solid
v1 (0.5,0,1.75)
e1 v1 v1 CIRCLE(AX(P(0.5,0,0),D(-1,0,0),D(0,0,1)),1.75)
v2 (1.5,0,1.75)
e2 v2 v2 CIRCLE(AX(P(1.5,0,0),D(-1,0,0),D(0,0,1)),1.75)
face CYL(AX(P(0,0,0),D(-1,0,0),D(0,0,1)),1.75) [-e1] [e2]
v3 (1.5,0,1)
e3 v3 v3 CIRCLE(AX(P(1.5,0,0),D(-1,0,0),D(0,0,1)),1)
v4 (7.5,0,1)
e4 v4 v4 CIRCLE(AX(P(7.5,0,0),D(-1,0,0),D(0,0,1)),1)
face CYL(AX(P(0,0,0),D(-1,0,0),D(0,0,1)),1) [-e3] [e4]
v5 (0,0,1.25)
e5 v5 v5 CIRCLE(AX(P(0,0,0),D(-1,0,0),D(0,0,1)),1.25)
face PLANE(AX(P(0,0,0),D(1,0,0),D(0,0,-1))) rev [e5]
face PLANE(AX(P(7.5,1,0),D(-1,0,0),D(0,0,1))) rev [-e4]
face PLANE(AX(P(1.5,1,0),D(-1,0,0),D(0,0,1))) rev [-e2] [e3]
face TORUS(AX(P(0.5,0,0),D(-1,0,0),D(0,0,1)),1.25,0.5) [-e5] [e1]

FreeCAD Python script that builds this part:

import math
import FreeCAD as App
import Part
import Sketcher
from FreeCAD import Vector
Q = App.Units.Quantity

doc = App.newDocument("Part")
body = doc.addObject("PartDesign::Body", "Body")

sketch1 = body.newObject("Sketcher::SketchObject", "Sketch")
sketch1.AttachmentSupport = (doc.getObject("XY_Plane"), [""])
sketch1.MapMode = "FlatFace"
sketch1.addGeometry([
    Part.LineSegment(Vector(0, 0, 0), Vector(7.5, 0, 0)),
    Part.LineSegment(Vector(7.5, 0, 0), Vector(7.5, 1, 0)),
    Part.LineSegment(Vector(7.5, 1, 0), Vector(1.5, 1, 0)),
    Part.LineSegment(Vector(1.5, 1, 0), Vector(1.5, 1.75, 0)),
    Part.LineSegment(Vector(1.5, 1.75, 0), Vector(0.5, 1.75, 0)),
    Part.ArcOfCircle(Part.Circle(Vector(0.5, 1.25, 0), Vector(0, 0, 1), 0.5), math.radians(90), math.radians(180)),
    Part.LineSegment(Vector(0, 1.25, 0), Vector(0, 0, 0)),
], False)
sketch1.addConstraint([
    Sketcher.Constraint("Coincident", 0, 2, 1, 1),
    Sketcher.Constraint("Coincident", 1, 2, 2, 1),
    Sketcher.Constraint("Coincident", 2, 2, 3, 1),
    Sketcher.Constraint("Coincident", 3, 2, 4, 1),
    Sketcher.Constraint("Tangent", 4, 2, 5, 1),
    Sketcher.Constraint("Tangent", 5, 2, 6, 1),
    Sketcher.Constraint("Coincident", 6, 2, 0, 1),
    Sketcher.Constraint("Horizontal", 0),
    Sketcher.Constraint("Vertical", 1),
    Sketcher.Constraint("Horizontal", 2),
    Sketcher.Constraint("Vertical", 3),
    Sketcher.Constraint("Horizontal", 4),
    Sketcher.Constraint("Vertical", 6),
    Sketcher.Constraint("Coincident", 6, 2, -1, 1),
    Sketcher.Constraint("Equal", 4, 1),
    Sketcher.Constraint("Radius", 5, Q("0.5 mm")),
    Sketcher.Constraint("DistanceX", 2, 2, 2, 1, Q("6 mm")),
    Sketcher.Constraint("DistanceX", 4, 2, 4, 1, Q("1 mm")),
    Sketcher.Constraint("DistanceY", 3, 1, 3, 2, Q("0.75 mm")),
])
revolution = body.newObject("PartDesign::Revolution", "Revolution")
revolution.Profile = sketch1
revolution.ReferenceAxis = (sketch1, ["H_Axis"])
revolution.Angle = 360

doc.recompute()
